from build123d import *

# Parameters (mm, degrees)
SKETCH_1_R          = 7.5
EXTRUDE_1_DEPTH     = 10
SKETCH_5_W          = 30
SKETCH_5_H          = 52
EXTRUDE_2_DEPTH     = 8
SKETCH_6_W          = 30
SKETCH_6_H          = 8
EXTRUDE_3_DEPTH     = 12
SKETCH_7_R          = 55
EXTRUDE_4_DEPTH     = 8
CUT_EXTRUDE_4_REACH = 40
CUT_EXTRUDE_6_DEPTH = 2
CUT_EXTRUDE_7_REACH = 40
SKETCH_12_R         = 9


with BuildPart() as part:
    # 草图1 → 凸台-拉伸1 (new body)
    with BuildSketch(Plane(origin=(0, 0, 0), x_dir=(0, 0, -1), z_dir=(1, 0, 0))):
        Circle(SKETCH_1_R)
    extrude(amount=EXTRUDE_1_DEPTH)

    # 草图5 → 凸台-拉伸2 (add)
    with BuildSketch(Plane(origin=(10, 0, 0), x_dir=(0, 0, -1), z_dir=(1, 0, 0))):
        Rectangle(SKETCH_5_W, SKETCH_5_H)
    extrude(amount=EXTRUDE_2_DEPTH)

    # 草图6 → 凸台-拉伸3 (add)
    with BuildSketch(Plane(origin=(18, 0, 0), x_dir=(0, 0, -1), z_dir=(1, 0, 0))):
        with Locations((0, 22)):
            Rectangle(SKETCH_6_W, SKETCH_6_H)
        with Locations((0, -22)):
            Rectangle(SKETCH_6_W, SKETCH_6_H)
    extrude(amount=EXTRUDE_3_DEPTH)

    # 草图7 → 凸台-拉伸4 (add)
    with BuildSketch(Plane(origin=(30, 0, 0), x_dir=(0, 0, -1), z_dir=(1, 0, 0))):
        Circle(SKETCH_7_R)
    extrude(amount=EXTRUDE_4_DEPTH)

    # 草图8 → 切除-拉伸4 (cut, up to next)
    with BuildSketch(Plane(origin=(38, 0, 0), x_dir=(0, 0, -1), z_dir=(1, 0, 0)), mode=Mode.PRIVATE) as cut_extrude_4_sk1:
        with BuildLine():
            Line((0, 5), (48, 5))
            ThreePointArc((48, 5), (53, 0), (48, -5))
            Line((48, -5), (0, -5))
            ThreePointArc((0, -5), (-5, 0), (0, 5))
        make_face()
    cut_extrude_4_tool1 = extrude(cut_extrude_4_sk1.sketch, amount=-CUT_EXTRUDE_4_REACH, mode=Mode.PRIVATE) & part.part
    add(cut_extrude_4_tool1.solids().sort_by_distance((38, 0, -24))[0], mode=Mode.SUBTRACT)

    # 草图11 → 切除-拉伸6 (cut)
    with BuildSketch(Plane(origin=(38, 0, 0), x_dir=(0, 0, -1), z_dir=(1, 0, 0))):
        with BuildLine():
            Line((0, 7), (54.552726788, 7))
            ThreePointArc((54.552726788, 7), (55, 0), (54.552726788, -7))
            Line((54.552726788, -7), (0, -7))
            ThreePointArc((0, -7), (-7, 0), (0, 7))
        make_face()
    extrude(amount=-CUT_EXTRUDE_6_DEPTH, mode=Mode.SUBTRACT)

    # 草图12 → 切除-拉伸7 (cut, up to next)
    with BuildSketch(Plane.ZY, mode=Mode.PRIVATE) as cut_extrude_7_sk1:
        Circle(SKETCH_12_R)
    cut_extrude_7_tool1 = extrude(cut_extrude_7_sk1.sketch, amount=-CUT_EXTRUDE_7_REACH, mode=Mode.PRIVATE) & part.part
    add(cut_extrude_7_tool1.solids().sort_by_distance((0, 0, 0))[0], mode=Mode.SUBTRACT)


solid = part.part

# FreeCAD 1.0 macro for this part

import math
import FreeCAD as App
import Part
import Sketcher
from FreeCAD import Vector


def add_polygon(sketch, points):
    """Adds a closed chain of lines whose ends are joined by coincident constraints."""
    first, n = sketch.GeometryCount, len(points)
    for a, b in zip(points, points[1:] + points[:1]):
        sketch.addGeometry(Part.LineSegment(App.Vector(*a, 0), App.Vector(*b, 0)), False)
    for i in range(n):
        sketch.addConstraint(Sketcher.Constraint("Coincident", first + i, 2, first + (i + 1) % n, 1))

doc = App.newDocument("Part")
body = doc.addObject("PartDesign::Body", "Body")

sketch1 = body.newObject("Sketcher::SketchObject", "Sketch")
sketch1.AttachmentSupport = (doc.getObject("YZ_Plane"), [""])
sketch1.MapMode = "FlatFace"
sketch1.addGeometry(Part.Circle(Vector(0, 0, 0), Vector(0, 0, 1), 8), False)
sketch1.addConstraint([
    Sketcher.Constraint("Coincident", 0, 3, -1, 1),
    Sketcher.Constraint("Diameter", 0, 15.0),
])
pad1 = body.newObject("PartDesign::Pad", "Pad")
pad1.Profile = sketch1
pad1.Length = 10

sketch2 = body.newObject("Sketcher::SketchObject", "Sketch001")
sketch2.AttachmentSupport = (doc.getObject("YZ_Plane"), [""])
sketch2.MapMode = "FlatFace"
sketch2.AttachmentOffset = App.Placement(Vector(0, 0, 10), App.Rotation())
add_polygon(sketch2, [(26, 15), (-26, 15), (-26, -15), (26, -15)])
sketch2.addConstraint([
    Sketcher.Constraint("Horizontal", 0),
    Sketcher.Constraint("Vertical", 1),
    Sketcher.Constraint("Horizontal", 2),
    Sketcher.Constraint("Vertical", 3),
    Sketcher.Constraint("Symmetric", 0, 2, 2, 2, -1, 1),
    Sketcher.Constraint("DistanceX", 0, 2, 0, 1, 52.0),
    Sketcher.Constraint("DistanceY", 1, 2, 1, 1, 30.0),
])
pad2 = body.newObject("PartDesign::Pad", "Pad001")
pad2.Profile = sketch2
pad2.Length = 8

sketch3 = body.newObject("Sketcher::SketchObject", "Sketch002")
sketch3.AttachmentSupport = (doc.getObject("YZ_Plane"), [""])
sketch3.MapMode = "FlatFace"
sketch3.AttachmentOffset = App.Placement(Vector(0, 0, 18), App.Rotation())
add_polygon(sketch3, [(26, 15), (18, 15), (18, -15), (26, -15)])
add_polygon(sketch3, [(-18, 15), (-26, 15), (-26, -15), (-18, -15)])
sketch3.addConstraint([
    Sketcher.Constraint("Horizontal", 0),
    Sketcher.Constraint("Vertical", 1),
    Sketcher.Constraint("Horizontal", 2),
    Sketcher.Constraint("Vertical", 3),
    Sketcher.Constraint("Horizontal", 4),
    Sketcher.Constraint("Vertical", 5),
    Sketcher.Constraint("Horizontal", 6),
    Sketcher.Constraint("Vertical", 7),
    Sketcher.Constraint("Symmetric", 2, 2, 4, 2, -1, 1),
    Sketcher.Constraint("Symmetric", 0, 2, 6, 2, -1, 1),
    Sketcher.Constraint("Horizontal", 3, 2, 4, 2),
    Sketcher.Constraint("DistanceX", 0, 2, 0, 1, 8.0),
    Sketcher.Constraint("DistanceY", 1, 2, 1, 1, 30.0),
    Sketcher.Constraint("DistanceX", -1, 1, 0, 2, 18.0),
])
pad3 = body.newObject("PartDesign::Pad", "Pad002")
pad3.Profile = sketch3
pad3.Length = 12

sketch4 = body.newObject("Sketcher::SketchObject", "Sketch003")
sketch4.AttachmentSupport = (doc.getObject("YZ_Plane"), [""])
sketch4.MapMode = "FlatFace"
sketch4.AttachmentOffset = App.Placement(Vector(0, 0, 30), App.Rotation())
sketch4.addGeometry(Part.Circle(Vector(0, 0, 0), Vector(0, 0, 1), 55), False)
sketch4.addConstraint([
    Sketcher.Constraint("Coincident", 0, 3, -1, 1),
    Sketcher.Constraint("Diameter", 0, 110.0),
])
pad4 = body.newObject("PartDesign::Pad", "Pad003")
pad4.Profile = sketch4
pad4.Length = 8

sketch5 = body.newObject("Sketcher::SketchObject", "Sketch004")
sketch5.AttachmentSupport = (doc.getObject("YZ_Plane"), [""])
sketch5.MapMode = "FlatFace"
sketch5.AttachmentOffset = App.Placement(Vector(0, 0, 38), App.Rotation())
sketch5.addGeometry([
    Part.LineSegment(Vector(5, -48, 0), Vector(5, 0, 0)),
    Part.ArcOfCircle(Part.Circle(Vector(0, 0, 0), Vector(0, 0, 1), 5), math.radians(0), math.radians(180)),
    Part.LineSegment(Vector(-5, 0, 0), Vector(-5, -48, 0)),
    Part.ArcOfCircle(Part.Circle(Vector(0, -48, 0), Vector(0, 0, 1), 5), math.radians(180), math.radians(360)),
], False)
sketch5.addConstraint([
    Sketcher.Constraint("Tangent", 0, 2, 1, 1),
    Sketcher.Constraint("Tangent", 1, 2, 2, 1),
    Sketcher.Constraint("Tangent", 2, 2, 3, 1),
    Sketcher.Constraint("Tangent", 3, 2, 0, 1),
    Sketcher.Constraint("Vertical", 0),
    Sketcher.Constraint("Vertical", 2),
    Sketcher.Constraint("Coincident", 1, 3, -1, 1),
    Sketcher.Constraint("Radius", 1, 5.0),
    Sketcher.Constraint("DistanceY", 0, 1, 0, 2, 48.0),
])
pocket1 = body.newObject("PartDesign::Pocket", "Pocket")
pocket1.Profile = sketch5
pocket1.Type = "UpToFirst"

sketch6 = body.newObject("Sketcher::SketchObject", "Sketch005")
sketch6.AttachmentSupport = (doc.getObject("YZ_Plane"), [""])
sketch6.MapMode = "FlatFace"
sketch6.AttachmentOffset = App.Placement(Vector(0, 0, 38), App.Rotation())
sketch6.addGeometry([
    Part.LineSegment(Vector(7, -55, 0), Vector(7, 0, 0)),
    Part.ArcOfCircle(Part.Circle(Vector(0, 0, 0), Vector(0, 0, 1), 7), math.radians(0), math.radians(180)),
    Part.LineSegment(Vector(-7, 0, 0), Vector(-7, -55, 0)),
    Part.ArcOfCircle(Part.Circle(Vector(0, 0, 0), Vector(0, 0, 1), 55), math.radians(-97.31), math.radians(-82.69)),
], False)
sketch6.addConstraint([
    Sketcher.Constraint("Tangent", 0, 2, 1, 1),
    Sketcher.Constraint("Tangent", 1, 2, 2, 1),
    Sketcher.Constraint("Coincident", 2, 2, 3, 1),
    Sketcher.Constraint("Coincident", 3, 2, 0, 1),
    Sketcher.Constraint("Vertical", 0),
    Sketcher.Constraint("Vertical", 2),
    Sketcher.Constraint("Coincident", 1, 3, -1, 1),
    Sketcher.Constraint("Coincident", 3, 3, -1, 1),
    Sketcher.Constraint("Radius", 1, 7.0),
    Sketcher.Constraint("Radius", 3, 55.0),
])
pocket2 = body.newObject("PartDesign::Pocket", "Pocket001")
pocket2.Profile = sketch6
pocket2.Length = 2

sketch7 = body.newObject("Sketcher::SketchObject", "Sketch006")
sketch7.AttachmentSupport = (doc.getObject("YZ_Plane"), [""])
sketch7.MapMode = "FlatFace"
sketch7.addGeometry(Part.Circle(Vector(0, 0, 0), Vector(0, 0, 1), 9), False)
sketch7.addConstraint([
    Sketcher.Constraint("Coincident", 0, 3, -1, 1),
    Sketcher.Constraint("Diameter", 0, 18.0),
])
pocket3 = body.newObject("PartDesign::Pocket", "Pocket002")
pocket3.Profile = sketch7
pocket3.Type = "UpToFirst"
pocket3.Reversed = True

doc.recompute()
